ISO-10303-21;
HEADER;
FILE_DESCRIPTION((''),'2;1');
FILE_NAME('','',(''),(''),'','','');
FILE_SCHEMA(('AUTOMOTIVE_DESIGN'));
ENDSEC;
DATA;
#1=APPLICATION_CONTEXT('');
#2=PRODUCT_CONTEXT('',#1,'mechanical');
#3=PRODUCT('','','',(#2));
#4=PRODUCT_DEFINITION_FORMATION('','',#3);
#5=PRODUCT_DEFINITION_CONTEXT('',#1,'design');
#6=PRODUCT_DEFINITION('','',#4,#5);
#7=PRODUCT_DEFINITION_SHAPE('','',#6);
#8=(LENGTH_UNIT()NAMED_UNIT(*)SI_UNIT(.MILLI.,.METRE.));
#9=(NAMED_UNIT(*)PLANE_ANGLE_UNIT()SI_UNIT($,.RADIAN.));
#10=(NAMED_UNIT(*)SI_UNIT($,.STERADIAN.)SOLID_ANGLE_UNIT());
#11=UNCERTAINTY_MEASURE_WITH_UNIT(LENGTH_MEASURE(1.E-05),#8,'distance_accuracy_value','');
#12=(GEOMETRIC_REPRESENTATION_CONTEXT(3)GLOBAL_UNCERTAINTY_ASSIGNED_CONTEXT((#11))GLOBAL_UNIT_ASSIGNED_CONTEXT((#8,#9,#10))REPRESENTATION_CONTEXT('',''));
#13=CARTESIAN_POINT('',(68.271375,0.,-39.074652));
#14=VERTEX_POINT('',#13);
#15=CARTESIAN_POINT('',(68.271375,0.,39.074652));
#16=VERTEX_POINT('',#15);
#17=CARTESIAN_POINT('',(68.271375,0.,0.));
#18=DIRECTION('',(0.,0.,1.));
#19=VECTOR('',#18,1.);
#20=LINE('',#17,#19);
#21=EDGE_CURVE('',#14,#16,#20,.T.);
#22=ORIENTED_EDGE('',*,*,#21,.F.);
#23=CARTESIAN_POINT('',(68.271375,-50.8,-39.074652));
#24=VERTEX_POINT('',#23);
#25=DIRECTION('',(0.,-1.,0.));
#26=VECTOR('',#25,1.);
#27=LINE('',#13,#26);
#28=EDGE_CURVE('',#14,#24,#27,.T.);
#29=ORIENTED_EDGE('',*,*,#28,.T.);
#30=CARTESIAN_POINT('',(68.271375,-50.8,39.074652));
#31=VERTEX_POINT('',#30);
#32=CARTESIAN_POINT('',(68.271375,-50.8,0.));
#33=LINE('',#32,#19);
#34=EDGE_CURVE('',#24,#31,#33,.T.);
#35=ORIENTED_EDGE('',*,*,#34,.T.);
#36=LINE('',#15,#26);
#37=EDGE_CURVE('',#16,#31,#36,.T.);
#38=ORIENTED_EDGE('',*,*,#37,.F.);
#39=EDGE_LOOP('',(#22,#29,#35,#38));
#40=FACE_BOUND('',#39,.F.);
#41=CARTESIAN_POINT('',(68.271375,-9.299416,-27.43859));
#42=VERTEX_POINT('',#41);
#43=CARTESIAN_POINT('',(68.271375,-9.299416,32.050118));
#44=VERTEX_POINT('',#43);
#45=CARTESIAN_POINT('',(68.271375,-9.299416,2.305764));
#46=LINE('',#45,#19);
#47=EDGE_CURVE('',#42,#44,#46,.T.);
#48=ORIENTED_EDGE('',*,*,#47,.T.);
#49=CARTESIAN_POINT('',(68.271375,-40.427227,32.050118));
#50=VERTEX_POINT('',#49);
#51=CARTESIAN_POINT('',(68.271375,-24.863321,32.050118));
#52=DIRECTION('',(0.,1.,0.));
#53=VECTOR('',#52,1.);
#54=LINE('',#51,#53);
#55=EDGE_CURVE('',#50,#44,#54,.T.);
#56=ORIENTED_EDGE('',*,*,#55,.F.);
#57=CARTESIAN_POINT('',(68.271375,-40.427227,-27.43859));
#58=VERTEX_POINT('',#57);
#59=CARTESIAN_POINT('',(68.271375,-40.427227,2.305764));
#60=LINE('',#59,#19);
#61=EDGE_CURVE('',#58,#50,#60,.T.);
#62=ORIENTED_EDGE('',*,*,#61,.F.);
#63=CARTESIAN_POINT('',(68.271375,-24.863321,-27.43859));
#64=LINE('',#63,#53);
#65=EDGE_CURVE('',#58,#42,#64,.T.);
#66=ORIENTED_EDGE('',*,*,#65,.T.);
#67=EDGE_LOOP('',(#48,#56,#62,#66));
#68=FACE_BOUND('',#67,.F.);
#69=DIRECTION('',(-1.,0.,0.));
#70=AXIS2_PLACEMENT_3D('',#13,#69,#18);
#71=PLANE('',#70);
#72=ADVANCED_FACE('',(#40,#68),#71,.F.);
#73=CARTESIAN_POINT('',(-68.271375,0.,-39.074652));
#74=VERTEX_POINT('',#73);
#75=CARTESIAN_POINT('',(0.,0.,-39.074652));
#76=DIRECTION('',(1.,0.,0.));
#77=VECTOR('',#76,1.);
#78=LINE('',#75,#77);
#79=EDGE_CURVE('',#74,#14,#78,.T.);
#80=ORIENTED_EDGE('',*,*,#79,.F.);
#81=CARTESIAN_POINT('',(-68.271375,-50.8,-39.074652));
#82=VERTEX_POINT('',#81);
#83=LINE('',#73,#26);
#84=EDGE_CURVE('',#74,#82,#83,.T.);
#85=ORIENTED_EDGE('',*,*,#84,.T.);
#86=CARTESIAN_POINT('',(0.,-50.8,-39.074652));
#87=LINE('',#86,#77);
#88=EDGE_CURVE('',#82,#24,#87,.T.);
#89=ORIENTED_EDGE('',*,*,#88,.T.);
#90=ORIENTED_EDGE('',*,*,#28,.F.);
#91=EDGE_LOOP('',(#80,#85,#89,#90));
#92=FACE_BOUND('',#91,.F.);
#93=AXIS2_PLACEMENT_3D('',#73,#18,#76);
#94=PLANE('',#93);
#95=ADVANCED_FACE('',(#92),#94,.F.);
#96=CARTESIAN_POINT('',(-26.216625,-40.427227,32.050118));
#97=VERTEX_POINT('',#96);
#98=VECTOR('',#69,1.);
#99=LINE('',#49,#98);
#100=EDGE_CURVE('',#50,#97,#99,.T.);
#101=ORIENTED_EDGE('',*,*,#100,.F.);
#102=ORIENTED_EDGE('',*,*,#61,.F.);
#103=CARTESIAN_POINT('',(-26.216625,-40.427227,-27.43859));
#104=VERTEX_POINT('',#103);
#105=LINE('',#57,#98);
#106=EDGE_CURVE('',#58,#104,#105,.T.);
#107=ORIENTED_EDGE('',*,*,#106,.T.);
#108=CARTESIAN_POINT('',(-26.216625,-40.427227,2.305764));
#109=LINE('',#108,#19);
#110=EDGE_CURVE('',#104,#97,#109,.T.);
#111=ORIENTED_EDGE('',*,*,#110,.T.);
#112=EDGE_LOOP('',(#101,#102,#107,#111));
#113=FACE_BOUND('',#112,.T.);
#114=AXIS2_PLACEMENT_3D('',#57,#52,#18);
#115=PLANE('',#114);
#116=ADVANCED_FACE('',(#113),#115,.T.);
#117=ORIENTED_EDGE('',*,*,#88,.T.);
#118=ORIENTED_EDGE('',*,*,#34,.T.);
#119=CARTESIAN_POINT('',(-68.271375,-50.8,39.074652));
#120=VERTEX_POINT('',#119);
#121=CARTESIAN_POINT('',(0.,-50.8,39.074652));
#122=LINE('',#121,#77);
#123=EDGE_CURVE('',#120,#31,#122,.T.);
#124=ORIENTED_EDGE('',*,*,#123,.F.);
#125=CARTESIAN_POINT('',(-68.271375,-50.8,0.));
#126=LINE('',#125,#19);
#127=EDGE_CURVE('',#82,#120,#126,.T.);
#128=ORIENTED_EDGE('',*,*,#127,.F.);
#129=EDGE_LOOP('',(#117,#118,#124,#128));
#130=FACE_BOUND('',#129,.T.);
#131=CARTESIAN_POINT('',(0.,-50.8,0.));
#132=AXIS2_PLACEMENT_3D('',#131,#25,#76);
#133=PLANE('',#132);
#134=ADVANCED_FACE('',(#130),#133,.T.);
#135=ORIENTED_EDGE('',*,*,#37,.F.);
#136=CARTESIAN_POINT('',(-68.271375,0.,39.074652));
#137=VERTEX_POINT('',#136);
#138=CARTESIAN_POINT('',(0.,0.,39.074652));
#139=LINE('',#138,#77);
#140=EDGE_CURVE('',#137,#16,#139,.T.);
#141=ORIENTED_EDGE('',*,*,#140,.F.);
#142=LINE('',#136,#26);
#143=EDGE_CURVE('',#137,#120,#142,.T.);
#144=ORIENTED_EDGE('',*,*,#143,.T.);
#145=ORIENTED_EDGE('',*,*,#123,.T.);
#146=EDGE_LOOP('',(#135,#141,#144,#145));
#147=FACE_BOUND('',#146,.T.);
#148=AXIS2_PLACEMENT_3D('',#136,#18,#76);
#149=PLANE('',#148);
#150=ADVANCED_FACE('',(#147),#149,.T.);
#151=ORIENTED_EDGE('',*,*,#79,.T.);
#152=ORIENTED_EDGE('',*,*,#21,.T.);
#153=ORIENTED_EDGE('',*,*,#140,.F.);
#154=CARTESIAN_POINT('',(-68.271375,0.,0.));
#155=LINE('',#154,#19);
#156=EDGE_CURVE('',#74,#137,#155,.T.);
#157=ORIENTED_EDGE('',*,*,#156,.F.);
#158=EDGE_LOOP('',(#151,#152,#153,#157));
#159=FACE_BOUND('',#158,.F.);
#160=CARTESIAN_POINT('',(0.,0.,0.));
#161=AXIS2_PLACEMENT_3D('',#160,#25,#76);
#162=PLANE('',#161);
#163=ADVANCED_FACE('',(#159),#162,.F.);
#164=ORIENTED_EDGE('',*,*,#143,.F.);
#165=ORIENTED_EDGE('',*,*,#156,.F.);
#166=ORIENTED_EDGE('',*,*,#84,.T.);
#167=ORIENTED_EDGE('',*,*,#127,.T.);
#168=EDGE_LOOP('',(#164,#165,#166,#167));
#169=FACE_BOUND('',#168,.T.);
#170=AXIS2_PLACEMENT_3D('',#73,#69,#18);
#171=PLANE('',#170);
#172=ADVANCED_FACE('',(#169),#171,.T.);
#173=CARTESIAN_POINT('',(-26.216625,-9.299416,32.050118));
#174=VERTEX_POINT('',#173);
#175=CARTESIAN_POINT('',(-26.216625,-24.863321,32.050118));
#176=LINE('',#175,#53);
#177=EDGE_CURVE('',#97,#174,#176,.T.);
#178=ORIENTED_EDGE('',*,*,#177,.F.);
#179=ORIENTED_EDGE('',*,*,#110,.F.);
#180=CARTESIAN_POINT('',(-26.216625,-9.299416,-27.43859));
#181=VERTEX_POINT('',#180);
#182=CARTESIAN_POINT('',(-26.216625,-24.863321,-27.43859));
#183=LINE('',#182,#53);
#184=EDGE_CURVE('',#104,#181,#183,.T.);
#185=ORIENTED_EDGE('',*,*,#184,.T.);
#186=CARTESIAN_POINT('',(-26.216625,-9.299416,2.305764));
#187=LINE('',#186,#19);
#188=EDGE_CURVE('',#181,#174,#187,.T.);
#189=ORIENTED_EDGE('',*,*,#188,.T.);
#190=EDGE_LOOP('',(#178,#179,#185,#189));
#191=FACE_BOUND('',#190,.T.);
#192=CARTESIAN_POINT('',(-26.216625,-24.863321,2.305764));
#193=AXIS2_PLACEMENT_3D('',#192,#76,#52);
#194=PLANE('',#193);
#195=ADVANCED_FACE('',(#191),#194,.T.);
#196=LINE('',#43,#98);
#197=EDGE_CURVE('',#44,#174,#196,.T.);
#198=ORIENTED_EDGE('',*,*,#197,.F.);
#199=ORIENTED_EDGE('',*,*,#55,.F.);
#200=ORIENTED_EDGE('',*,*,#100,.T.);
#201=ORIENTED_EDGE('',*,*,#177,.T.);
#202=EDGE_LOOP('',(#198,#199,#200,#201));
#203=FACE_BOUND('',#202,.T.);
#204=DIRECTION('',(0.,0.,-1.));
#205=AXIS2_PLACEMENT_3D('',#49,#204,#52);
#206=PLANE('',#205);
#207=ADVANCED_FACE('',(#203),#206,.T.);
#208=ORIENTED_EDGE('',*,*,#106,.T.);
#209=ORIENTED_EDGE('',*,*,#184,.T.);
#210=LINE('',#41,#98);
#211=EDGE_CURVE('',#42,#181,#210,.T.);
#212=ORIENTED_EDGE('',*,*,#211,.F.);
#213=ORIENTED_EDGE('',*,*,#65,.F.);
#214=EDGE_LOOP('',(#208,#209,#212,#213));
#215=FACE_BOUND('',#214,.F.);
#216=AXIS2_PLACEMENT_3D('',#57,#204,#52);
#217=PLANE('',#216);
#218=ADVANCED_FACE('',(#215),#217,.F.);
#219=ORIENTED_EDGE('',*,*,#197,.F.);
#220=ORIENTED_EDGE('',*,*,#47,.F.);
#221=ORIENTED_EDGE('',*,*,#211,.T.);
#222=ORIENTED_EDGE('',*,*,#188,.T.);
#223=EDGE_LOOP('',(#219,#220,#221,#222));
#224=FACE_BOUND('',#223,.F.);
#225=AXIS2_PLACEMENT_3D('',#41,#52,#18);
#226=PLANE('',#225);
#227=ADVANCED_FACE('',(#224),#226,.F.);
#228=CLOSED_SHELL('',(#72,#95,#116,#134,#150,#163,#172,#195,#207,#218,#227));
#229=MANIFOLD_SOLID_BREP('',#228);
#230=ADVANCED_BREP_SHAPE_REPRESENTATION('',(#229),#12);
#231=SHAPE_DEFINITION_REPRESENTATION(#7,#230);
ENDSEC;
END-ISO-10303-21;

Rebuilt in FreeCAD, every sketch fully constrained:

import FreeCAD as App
import Part
import Sketcher

V = App.Vector
Q = App.Units.Quantity


def add_polygon(sketch, points):
    """Adds a closed chain of lines whose ends are joined by coincident constraints."""
    first, n = sketch.GeometryCount, len(points)
    for a, b in zip(points, points[1:] + points[:1]):
        sketch.addGeometry(Part.LineSegment(App.Vector(*a, 0), App.Vector(*b, 0)), False)
    for i in range(n):
        sketch.addConstraint(Sketcher.Constraint("Coincident", first + i, 2, first + (i + 1) % n, 1))

doc = App.newDocument("Part")
body = doc.addObject("PartDesign::Body", "Body")

sketch1 = doc.addObject("Sketcher::SketchObject", "Sketch")
body.addObject(sketch1)
sketch1.AttachmentSupport = (doc.XZ_Plane, [""])
sketch1.MapMode = "FlatFace"
add_polygon(sketch1, [(-68, 39), (-68, -39), (68, -39), (68, 39)])
sketch1.addConstraint(Sketcher.Constraint("Vertical", 0))
sketch1.addConstraint(Sketcher.Constraint("Horizontal", 1))
sketch1.addConstraint(Sketcher.Constraint("Vertical", 2))
sketch1.addConstraint(Sketcher.Constraint("Horizontal", 3))
sketch1.addConstraint(Sketcher.Constraint("Symmetric", 0, 2, 2, 2, -1, 1))
sketch1.addConstraint(Sketcher.Constraint("DistanceX", 1, 1, 1, 2, 136.54275))
sketch1.addConstraint(Sketcher.Constraint("DistanceY", 0, 2, 0, 1, 78.149304))
pad1 = doc.addObject("PartDesign::Pad", "Pad")
body.addObject(pad1)
pad1.Profile = sketch1
pad1.Length = Q("2 in")

sketch2 = doc.addObject("Sketcher::SketchObject", "Sketch001")
body.addObject(sketch2)
sketch2.AttachmentSupport = (doc.YZ_Plane, [""])
sketch2.MapMode = "FlatFace"
sketch2.AttachmentOffset = App.Placement(V(0, 0, 68.271375), App.Rotation())
add_polygon(sketch2, [(-40, 32), (-40, -27), (-9, -27), (-9, 32)])
sketch2.addConstraint(Sketcher.Constraint("Vertical", 0))
sketch2.addConstraint(Sketcher.Constraint("Horizontal", 1))
sketch2.addConstraint(Sketcher.Constraint("Vertical", 2))
sketch2.addConstraint(Sketcher.Constraint("Horizontal", 3))
sketch2.addConstraint(Sketcher.Constraint("DistanceX", 1, 1, 1, 2, 31.127811))
sketch2.addConstraint(Sketcher.Constraint("DistanceY", 0, 2, 0, 1, 59.488708))
sketch2.addConstraint(Sketcher.Constraint("DistanceY", 0, 2, -1, 1, 27.43859))
sketch2.addConstraint(Sketcher.Constraint("DistanceX", 0, 2, -1, 1, 40.427227))
pocket1 = doc.addObject("PartDesign::Pocket", "Pocket")
body.addObject(pocket1)
pocket1.Profile = sketch2
pocket1.Length = Q("3.72 in")

doc.recompute()
